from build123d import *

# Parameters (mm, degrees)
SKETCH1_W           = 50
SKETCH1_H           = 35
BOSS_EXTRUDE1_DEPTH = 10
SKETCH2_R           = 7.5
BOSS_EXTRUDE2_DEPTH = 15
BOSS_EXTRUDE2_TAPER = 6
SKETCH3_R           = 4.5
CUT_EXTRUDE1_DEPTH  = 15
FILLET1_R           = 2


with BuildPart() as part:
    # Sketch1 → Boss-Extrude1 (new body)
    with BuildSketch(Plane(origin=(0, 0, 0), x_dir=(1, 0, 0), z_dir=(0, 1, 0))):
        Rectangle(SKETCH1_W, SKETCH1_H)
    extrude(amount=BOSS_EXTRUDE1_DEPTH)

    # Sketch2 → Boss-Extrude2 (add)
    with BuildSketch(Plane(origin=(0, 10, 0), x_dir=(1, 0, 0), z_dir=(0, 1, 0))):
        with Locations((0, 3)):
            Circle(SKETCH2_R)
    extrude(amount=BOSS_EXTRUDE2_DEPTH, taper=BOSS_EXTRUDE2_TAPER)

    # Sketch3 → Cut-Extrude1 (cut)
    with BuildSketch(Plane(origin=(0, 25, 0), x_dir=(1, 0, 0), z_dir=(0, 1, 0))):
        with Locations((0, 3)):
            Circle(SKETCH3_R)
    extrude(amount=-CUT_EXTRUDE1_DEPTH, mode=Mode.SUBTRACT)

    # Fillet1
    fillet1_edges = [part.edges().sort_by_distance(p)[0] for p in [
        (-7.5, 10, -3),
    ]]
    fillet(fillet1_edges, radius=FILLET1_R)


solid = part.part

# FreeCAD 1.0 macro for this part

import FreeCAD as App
import Part
import Sketcher
from FreeCAD import Vector


def edges_at(feature, points):
    """Names of the edges that pass closest to the given points."""
    edges = feature.Shape.Edges
    near = lambda p: min(range(len(edges)), key=lambda i: edges[i].distToShape(Part.Vertex(*p))[0])
    return sorted({f"Edge{near(p) + 1}" for p in points})

doc = App.newDocument("Part")
body = doc.addObject("PartDesign::Body", "Body")

# Sketch on XZ plane
sketch1 = body.newObject("Sketcher::SketchObject", "Sketch")
sketch1.AttachmentSupport = (doc.getObject("XZ_Plane"), [""])
sketch1.MapMode = "FlatFace"
sketch1.addGeometry(Part.LineSegment(Vector(-25, -17.5, 0), Vector(-25, 17.5, 0)), False)
sketch1.addGeometry(Part.LineSegment(Vector(-25, 17.5, 0), Vector(25, 17.5, 0)), False)
sketch1.addGeometry(Part.LineSegment(Vector(25, 17.5, 0), Vector(25, -17.5, 0)), False)
sketch1.addGeometry(Part.LineSegment(Vector(25, -17.5, 0), Vector(-25, -17.5, 0)), False)
sketch1.addConstraint(Sketcher.Constraint("Coincident", 0, 2, 1, 1))
sketch1.addConstraint(Sketcher.Constraint("Coincident", 1, 2, 2, 1))
sketch1.addConstraint(Sketcher.Constraint("Coincident", 2, 2, 3, 1))
sketch1.addConstraint(Sketcher.Constraint("Coincident", 3, 2, 0, 1))
sketch1.addConstraint(Sketcher.Constraint("Vertical", 0))
sketch1.addConstraint(Sketcher.Constraint("Horizontal", 1))
sketch1.addConstraint(Sketcher.Constraint("Vertical", 2))
sketch1.addConstraint(Sketcher.Constraint("Horizontal", 3))
sketch1.addConstraint(Sketcher.Constraint("Symmetric", 0, 2, 2, 2, -1, 1))
sketch1.addConstraint(Sketcher.Constraint("DistanceX", 1, 1, 1, 2, 50.0))
sketch1.addConstraint(Sketcher.Constraint("DistanceY", 0, 1, 0, 2, 35.0))
pad1 = body.newObject("PartDesign::Pad", "Pad")
pad1.Profile = sketch1
pad1.Length = 10
pad1.Reversed = True

# Sketch on XZ plane
sketch2 = body.newObject("Sketcher::SketchObject", "Sketch001")
sketch2.AttachmentSupport = (doc.getObject("XZ_Plane"), [""])
sketch2.MapMode = "FlatFace"
sketch2.AttachmentOffset = App.Placement(Vector(0, 0, -10), App.Rotation())
sketch2.addGeometry(Part.Circle(Vector(0, -3, 0), Vector(0, 0, 1), 7.5), False)
sketch2.addConstraint(Sketcher.Constraint("PointOnObject", 0, 3, -2))
sketch2.addConstraint(Sketcher.Constraint("Diameter", 0, 15.0))
sketch2.addConstraint(Sketcher.Constraint("DistanceY", 0, 3, -1, 1, 3.0))
pad2 = body.newObject("PartDesign::Pad", "Pad001")
pad2.Profile = sketch2
pad2.Length = 15
pad2.Reversed = True
pad2.TaperAngle = -6

# Sketch on XZ plane
sketch3 = body.newObject("Sketcher::SketchObject", "Sketch002")
sketch3.AttachmentSupport = (doc.getObject("XZ_Plane"), [""])
sketch3.MapMode = "FlatFace"
sketch3.AttachmentOffset = App.Placement(Vector(0, 0, -25), App.Rotation())
sketch3.addGeometry(Part.Circle(Vector(0, -3, 0), Vector(0, 0, 1), 4.5), False)
sketch3.addConstraint(Sketcher.Constraint("PointOnObject", 0, 3, -2))
sketch3.addConstraint(Sketcher.Constraint("Diameter", 0, 9.0))
sketch3.addConstraint(Sketcher.Constraint("DistanceY", 0, 3, -1, 1, 3.0))
pocket1 = body.newObject("PartDesign::Pocket", "Pocket")
pocket1.Profile = sketch3
pocket1.Length = 15
pocket1.Reversed = True
doc.recompute()

fillet = body.newObject("PartDesign::Fillet", "Fillet")
fillet.Base = (pocket1, edges_at(pocket1, [(-7.5, 10, -3)]))
fillet.Radius = 2

doc.recompute()
